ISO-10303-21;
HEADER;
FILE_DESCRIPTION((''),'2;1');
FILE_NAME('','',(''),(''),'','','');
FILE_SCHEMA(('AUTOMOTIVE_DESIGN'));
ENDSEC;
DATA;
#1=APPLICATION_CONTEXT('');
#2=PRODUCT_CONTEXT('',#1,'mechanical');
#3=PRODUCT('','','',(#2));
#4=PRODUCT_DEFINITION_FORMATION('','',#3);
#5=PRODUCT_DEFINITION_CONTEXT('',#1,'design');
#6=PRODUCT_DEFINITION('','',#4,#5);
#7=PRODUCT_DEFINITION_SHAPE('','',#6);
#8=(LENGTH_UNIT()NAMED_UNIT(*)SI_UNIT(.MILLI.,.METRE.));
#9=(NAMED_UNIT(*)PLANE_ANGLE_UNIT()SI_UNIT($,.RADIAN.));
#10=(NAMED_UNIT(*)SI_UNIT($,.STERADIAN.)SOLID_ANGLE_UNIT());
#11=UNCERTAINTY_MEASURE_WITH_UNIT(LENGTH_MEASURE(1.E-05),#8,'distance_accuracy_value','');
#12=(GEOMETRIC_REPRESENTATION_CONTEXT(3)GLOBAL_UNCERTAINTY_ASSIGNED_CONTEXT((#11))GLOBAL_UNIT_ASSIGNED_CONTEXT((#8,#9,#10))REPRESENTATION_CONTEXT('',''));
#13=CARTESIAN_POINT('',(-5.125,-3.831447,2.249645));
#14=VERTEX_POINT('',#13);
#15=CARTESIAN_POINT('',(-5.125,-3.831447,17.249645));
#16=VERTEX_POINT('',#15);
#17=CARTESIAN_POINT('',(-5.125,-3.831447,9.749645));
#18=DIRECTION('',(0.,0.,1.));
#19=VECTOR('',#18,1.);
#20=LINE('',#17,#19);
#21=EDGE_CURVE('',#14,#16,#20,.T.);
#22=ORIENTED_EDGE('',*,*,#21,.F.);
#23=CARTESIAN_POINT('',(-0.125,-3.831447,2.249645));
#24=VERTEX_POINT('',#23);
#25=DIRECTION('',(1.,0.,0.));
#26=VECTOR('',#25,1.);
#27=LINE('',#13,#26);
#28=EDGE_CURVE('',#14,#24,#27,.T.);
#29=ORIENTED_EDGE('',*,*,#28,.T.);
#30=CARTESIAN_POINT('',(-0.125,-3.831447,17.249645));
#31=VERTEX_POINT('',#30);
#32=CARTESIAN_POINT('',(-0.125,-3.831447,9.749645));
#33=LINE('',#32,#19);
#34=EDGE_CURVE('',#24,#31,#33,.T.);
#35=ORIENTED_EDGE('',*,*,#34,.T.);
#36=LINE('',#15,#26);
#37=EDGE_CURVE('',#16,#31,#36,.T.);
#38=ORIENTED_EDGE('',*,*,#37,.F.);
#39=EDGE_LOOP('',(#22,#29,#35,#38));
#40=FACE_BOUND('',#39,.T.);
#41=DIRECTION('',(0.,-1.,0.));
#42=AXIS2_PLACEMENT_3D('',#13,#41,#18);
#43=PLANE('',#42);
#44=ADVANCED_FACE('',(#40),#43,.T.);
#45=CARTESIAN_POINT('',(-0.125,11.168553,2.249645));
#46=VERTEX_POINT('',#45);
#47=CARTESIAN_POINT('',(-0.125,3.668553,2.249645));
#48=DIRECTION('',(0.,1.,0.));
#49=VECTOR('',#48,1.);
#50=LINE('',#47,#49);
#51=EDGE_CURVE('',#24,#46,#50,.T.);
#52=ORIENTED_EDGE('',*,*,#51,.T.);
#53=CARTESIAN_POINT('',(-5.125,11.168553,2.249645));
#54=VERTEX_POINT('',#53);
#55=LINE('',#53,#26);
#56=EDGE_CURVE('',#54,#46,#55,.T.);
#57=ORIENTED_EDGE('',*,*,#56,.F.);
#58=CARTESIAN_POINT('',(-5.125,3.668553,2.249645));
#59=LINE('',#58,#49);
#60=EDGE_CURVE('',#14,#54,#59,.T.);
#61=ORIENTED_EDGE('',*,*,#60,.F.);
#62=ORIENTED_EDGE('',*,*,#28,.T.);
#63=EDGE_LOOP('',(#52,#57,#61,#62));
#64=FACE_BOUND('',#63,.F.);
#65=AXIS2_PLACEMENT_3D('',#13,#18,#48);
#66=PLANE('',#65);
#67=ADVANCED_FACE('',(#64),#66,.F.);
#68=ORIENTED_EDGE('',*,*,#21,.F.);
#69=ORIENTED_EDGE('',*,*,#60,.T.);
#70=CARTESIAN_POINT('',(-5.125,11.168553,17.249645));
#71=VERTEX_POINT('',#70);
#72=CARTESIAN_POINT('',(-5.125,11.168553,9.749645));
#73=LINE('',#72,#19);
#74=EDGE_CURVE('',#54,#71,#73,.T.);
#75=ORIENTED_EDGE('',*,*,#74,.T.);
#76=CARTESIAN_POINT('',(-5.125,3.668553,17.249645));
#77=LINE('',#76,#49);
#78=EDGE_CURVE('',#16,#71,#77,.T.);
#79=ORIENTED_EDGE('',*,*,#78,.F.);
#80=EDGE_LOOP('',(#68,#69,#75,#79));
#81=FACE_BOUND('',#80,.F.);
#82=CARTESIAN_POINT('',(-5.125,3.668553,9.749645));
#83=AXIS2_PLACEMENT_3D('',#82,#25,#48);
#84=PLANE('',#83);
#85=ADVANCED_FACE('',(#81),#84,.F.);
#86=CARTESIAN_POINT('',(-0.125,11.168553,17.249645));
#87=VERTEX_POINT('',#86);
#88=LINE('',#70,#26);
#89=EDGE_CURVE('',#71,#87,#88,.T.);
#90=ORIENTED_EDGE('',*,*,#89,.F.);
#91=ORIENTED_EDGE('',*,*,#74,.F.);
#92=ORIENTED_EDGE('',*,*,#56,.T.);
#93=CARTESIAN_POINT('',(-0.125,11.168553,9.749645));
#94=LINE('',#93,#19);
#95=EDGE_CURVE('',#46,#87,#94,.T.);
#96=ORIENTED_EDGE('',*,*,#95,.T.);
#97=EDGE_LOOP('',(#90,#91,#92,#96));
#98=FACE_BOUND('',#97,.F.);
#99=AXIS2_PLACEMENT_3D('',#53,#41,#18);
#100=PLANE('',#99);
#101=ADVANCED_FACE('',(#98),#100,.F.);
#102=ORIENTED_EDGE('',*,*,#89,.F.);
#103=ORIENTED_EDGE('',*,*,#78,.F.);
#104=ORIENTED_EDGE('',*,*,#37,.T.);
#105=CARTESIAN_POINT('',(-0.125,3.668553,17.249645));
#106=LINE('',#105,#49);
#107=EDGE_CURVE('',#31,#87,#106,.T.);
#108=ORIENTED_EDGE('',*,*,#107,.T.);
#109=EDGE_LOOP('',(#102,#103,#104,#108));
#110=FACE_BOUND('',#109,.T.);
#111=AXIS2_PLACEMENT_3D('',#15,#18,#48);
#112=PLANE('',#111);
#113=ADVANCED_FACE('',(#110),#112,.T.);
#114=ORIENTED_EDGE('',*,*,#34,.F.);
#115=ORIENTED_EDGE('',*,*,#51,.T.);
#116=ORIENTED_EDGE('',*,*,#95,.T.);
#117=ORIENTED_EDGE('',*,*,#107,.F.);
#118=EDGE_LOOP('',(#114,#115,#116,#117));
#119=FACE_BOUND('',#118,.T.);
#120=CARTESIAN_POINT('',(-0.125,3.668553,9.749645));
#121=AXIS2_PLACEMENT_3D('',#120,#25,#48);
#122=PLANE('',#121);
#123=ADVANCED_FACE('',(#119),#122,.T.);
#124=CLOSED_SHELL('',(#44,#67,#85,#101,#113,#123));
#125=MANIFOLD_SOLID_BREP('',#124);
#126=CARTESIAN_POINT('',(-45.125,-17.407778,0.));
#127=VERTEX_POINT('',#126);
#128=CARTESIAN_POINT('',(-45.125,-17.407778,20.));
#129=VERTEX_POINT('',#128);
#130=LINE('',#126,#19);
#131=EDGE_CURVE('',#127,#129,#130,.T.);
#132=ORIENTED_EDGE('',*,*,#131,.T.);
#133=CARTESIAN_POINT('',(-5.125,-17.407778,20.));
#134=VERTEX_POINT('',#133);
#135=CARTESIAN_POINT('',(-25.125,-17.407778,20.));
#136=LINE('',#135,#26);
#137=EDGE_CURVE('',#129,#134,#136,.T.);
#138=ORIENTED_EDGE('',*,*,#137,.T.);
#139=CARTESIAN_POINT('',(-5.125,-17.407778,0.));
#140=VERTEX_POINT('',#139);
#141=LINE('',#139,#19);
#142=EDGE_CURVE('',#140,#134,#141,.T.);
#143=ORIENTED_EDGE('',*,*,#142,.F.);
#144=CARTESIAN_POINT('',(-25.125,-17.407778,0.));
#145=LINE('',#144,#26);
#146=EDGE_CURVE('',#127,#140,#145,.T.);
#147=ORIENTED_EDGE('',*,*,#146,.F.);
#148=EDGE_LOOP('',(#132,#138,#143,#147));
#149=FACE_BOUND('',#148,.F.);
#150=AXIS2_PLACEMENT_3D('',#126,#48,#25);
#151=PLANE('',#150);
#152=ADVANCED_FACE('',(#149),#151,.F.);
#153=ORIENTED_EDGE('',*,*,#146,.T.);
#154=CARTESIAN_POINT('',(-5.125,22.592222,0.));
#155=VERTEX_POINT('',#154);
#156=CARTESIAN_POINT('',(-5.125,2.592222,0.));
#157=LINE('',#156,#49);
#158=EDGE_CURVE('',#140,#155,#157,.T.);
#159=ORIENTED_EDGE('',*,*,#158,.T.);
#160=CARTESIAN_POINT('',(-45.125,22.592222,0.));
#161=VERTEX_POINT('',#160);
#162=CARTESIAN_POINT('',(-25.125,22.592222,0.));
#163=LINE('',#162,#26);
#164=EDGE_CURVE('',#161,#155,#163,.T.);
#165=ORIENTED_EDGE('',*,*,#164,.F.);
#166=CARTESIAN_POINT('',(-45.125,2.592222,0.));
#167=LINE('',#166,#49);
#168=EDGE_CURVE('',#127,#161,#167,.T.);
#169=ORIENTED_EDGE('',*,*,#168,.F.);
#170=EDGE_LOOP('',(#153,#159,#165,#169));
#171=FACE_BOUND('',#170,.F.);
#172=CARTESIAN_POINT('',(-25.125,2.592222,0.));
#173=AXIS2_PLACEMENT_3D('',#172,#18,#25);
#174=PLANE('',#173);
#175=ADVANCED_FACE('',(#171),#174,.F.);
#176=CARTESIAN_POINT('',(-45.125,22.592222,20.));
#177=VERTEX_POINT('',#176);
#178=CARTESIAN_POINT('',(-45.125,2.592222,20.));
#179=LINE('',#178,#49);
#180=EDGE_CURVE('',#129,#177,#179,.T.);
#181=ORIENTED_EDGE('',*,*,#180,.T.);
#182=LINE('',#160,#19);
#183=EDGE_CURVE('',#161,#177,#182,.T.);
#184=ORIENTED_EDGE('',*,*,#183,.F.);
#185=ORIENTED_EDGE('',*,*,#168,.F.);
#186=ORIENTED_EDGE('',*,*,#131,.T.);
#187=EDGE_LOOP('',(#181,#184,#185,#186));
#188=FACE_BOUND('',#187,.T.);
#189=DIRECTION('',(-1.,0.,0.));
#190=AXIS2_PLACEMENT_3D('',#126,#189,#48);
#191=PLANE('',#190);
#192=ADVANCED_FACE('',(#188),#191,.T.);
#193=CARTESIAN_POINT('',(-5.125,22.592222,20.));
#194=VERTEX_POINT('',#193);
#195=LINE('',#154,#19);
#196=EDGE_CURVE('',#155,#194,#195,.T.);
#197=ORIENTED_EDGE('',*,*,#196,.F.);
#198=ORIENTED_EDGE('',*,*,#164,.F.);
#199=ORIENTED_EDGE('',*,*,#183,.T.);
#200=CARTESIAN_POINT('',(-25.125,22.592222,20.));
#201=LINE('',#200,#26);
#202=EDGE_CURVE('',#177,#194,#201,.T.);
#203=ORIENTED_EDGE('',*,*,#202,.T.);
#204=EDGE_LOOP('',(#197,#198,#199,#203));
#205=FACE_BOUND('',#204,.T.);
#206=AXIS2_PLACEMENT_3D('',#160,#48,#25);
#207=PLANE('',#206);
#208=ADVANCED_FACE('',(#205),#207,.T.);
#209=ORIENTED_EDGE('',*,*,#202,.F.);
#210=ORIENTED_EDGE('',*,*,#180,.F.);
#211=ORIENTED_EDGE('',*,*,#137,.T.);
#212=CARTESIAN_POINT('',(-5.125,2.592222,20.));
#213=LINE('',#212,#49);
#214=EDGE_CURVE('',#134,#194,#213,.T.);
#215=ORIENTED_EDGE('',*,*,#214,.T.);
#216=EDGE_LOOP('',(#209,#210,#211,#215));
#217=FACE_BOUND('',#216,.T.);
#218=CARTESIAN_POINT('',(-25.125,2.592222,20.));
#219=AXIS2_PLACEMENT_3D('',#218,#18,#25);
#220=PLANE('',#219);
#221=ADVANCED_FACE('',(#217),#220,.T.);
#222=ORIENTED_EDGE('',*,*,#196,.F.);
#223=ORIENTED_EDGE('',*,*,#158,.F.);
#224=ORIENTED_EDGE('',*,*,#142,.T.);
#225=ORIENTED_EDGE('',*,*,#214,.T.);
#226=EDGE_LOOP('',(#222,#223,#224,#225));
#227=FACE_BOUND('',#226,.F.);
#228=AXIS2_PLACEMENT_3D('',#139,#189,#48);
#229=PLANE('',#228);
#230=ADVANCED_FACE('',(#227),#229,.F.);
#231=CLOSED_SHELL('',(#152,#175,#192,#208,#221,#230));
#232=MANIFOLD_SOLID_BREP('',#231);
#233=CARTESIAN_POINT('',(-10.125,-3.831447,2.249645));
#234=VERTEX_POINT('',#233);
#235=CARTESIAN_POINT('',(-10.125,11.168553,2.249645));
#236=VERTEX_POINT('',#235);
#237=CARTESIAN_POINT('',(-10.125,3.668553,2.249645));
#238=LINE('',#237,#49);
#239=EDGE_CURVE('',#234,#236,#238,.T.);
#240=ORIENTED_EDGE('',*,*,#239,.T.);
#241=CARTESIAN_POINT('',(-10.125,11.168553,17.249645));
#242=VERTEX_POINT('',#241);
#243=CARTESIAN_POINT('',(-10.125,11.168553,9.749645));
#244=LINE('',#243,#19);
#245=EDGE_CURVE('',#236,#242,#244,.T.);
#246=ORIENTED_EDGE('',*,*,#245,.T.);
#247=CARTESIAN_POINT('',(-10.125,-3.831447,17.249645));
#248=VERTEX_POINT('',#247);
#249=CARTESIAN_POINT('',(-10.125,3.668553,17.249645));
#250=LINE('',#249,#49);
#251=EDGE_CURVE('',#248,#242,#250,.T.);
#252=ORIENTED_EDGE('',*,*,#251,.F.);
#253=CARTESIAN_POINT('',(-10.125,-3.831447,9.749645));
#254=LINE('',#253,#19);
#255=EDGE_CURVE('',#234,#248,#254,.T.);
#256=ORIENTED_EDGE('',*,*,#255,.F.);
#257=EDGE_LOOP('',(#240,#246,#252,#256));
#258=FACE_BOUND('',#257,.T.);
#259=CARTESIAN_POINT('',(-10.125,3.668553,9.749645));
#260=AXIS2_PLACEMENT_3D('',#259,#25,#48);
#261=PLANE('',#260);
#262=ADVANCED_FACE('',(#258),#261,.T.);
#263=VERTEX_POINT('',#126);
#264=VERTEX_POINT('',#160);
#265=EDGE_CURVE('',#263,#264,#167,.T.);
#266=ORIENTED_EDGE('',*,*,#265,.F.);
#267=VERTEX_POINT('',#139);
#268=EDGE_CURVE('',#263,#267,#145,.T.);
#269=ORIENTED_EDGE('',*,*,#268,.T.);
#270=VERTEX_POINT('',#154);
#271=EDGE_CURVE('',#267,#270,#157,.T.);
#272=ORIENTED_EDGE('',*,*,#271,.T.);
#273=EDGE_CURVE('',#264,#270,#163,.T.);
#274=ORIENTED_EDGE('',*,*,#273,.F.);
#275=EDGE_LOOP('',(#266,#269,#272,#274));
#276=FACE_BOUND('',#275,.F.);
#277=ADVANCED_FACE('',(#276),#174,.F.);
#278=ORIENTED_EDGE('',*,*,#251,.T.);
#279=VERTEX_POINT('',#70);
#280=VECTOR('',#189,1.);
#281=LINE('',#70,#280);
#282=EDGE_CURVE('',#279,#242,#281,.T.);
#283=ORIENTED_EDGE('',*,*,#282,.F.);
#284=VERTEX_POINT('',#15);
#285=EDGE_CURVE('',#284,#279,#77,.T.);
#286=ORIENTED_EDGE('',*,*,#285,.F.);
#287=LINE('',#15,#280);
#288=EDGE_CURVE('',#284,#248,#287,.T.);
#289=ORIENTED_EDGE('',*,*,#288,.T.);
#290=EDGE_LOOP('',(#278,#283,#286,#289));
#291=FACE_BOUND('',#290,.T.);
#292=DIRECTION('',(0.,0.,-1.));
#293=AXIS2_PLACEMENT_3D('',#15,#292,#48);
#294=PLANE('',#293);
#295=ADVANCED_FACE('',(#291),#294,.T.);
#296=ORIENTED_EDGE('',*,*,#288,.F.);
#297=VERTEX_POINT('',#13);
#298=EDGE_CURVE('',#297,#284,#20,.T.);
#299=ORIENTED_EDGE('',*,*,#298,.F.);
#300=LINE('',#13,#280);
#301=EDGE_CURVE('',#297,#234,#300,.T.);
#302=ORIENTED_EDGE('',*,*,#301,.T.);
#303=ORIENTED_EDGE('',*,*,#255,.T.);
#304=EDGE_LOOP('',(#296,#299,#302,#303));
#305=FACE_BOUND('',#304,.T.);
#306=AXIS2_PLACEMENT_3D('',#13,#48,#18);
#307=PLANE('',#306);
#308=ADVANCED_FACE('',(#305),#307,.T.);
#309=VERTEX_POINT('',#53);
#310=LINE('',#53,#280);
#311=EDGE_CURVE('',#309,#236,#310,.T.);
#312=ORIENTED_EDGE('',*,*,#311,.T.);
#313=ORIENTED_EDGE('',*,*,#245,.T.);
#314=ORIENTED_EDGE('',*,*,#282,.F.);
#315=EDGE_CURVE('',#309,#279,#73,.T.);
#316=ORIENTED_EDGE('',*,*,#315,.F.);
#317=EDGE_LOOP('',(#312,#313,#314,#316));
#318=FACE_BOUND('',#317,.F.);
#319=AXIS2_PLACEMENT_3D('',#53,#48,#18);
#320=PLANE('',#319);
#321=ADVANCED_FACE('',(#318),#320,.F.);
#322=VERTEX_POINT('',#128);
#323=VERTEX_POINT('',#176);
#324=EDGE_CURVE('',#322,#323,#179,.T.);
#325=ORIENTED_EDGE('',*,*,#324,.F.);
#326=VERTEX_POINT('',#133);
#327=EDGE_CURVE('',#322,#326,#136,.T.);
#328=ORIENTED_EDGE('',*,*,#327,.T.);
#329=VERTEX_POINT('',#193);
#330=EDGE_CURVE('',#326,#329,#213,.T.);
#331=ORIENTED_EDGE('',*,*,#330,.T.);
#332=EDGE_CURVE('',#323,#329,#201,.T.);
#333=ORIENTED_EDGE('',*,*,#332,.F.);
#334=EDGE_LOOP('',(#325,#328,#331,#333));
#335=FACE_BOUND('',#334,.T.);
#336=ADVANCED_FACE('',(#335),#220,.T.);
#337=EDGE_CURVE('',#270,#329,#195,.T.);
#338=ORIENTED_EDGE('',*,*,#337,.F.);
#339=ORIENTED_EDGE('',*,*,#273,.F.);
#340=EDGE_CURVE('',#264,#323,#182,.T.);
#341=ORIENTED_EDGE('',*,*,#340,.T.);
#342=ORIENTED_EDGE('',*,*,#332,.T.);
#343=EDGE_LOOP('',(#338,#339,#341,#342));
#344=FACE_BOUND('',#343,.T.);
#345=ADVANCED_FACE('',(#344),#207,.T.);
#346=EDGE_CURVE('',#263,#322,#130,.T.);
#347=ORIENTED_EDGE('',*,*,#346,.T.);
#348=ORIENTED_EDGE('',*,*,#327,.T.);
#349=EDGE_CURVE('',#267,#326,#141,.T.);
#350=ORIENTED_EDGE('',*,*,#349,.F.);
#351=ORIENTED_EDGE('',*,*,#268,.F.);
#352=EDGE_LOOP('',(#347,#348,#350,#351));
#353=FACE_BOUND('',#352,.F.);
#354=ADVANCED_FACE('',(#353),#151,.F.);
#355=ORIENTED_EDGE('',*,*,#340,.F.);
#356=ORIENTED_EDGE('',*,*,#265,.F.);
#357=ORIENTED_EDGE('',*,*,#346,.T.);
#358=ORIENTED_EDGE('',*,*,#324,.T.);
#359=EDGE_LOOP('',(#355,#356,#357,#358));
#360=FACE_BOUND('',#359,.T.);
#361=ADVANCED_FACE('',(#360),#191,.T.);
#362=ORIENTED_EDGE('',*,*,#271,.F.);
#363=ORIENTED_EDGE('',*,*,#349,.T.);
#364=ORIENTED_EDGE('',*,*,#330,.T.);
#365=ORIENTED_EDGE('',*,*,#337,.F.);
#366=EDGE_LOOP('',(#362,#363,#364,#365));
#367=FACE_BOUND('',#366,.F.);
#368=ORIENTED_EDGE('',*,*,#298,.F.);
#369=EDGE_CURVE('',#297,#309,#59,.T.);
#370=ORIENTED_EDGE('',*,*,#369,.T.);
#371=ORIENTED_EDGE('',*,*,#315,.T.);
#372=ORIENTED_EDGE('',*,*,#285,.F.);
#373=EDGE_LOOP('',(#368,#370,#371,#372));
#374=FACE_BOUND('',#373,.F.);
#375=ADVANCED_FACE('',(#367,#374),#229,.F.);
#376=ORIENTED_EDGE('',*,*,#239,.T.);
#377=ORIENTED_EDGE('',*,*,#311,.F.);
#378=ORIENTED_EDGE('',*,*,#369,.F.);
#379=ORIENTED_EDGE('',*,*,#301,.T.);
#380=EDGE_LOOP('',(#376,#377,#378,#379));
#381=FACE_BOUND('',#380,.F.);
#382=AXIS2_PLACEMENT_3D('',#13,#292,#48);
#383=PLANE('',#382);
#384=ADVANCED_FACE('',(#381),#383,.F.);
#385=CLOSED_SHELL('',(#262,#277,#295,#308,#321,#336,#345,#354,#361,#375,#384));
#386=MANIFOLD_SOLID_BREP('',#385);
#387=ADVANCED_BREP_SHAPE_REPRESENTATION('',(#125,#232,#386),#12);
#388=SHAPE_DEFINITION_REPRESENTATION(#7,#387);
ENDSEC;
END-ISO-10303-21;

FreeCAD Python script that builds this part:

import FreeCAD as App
import Part
import Sketcher
from FreeCAD import Vector


def add_polygon(sketch, points):
    """Adds a closed chain of lines whose ends are joined by coincident constraints."""
    first, n = sketch.GeometryCount, len(points)
    for a, b in zip(points, points[1:] + points[:1]):
        sketch.addGeometry(Part.LineSegment(App.Vector(*a, 0), App.Vector(*b, 0)), False)
    for i in range(n):
        sketch.addConstraint(Sketcher.Constraint("Coincident", first + i, 2, first + (i + 1) % n, 1))

doc = App.newDocument("Part")
body = doc.addObject("PartDesign::Body", "Body")

# Sketch on XY plane
sketch1 = doc.addObject("Sketcher::SketchObject", "Sketch")
body.addObject(sketch1)
sketch1.AttachmentSupport = (doc.XY_Plane, [""])
sketch1.MapMode = "FlatFace"
add_polygon(sketch1, [(-45.125, 22.592222), (-45.125, -17.407778), (-5.125, -17.407778), (-5.125, 22.592222)])  # lines 0-3
sketch1.addConstraint(Sketcher.Constraint("Vertical", 0))
sketch1.addConstraint(Sketcher.Constraint("Horizontal", 1))
sketch1.addConstraint(Sketcher.Constraint("Vertical", 2))
sketch1.addConstraint(Sketcher.Constraint("Horizontal", 3))
sketch1.addConstraint(Sketcher.Constraint("Equal", 3, 0))
sketch1.addConstraint(Sketcher.Constraint("DistanceX", 1, 1, 1, 2, 40.0))
sketch1.addConstraint(Sketcher.Constraint("DistanceX", 0, 2, -1, 1, 45.125))
sketch1.addConstraint(Sketcher.Constraint("DistanceY", 0, 2, -1, 1, 17.407778))
pad1 = doc.addObject("PartDesign::Pad", "Pad")
body.addObject(pad1)
pad1.Profile = sketch1
pad1.Length = 20
body2 = doc.addObject("PartDesign::Body", "Body001")
doc.recompute()

body2.BaseFeature = body
doc.recompute()
body3 = doc.addObject("PartDesign::Body", "Body002")

# Sketch on YZ plane
sketch2 = doc.addObject("Sketcher::SketchObject", "Sketch001")
body3.addObject(sketch2)
sketch2.AttachmentSupport = (doc.getObject("YZ_Plane002"), [""])
sketch2.MapMode = "FlatFace"
sketch2.AttachmentOffset = App.Placement(Vector(0, 0, -5.125), App.Rotation())
add_polygon(sketch2, [(-3.831447, 17.249645), (-3.831447, 2.249645), (11.168553, 2.249645), (11.168553, 17.249645)])  # lines 0-3
sketch2.addConstraint(Sketcher.Constraint("Vertical", 0))
sketch2.addConstraint(Sketcher.Constraint("Horizontal", 1))
sketch2.addConstraint(Sketcher.Constraint("Vertical", 2))
sketch2.addConstraint(Sketcher.Constraint("Horizontal", 3))
sketch2.addConstraint(Sketcher.Constraint("Equal", 3, 0))
sketch2.addConstraint(Sketcher.Constraint("DistanceX", 1, 1, 1, 2, 15.0))
sketch2.addConstraint(Sketcher.Constraint("DistanceX", 0, 2, -1, 1, 3.831447))
sketch2.addConstraint(Sketcher.Constraint("DistanceY", -1, 1, 0, 2, 2.249645))
pad2 = doc.addObject("PartDesign::Pad", "Pad001")
body3.addObject(pad2)
pad2.Profile = sketch2
pad2.Length = 5
body4 = doc.addObject("PartDesign::Body", "Body003")
doc.recompute()

body4.BaseFeature = body
doc.recompute()

# Sketch on YZ plane
sketch3 = doc.addObject("Sketcher::SketchObject", "Sketch002")
body4.addObject(sketch3)
sketch3.AttachmentSupport = (doc.getObject("YZ_Plane003"), [""])
sketch3.MapMode = "FlatFace"
sketch3.AttachmentOffset = App.Placement(Vector(0, 0, -5.125), App.Rotation())
add_polygon(sketch3, [(-3.831447, 17.249645), (-3.831447, 2.249645), (11.168553, 2.249645), (11.168553, 17.249645)])  # lines 0-3
sketch3.addConstraint(Sketcher.Constraint("Vertical", 0))
sketch3.addConstraint(Sketcher.Constraint("Horizontal", 1))
sketch3.addConstraint(Sketcher.Constraint("Vertical", 2))
sketch3.addConstraint(Sketcher.Constraint("Horizontal", 3))
sketch3.addConstraint(Sketcher.Constraint("Equal", 3, 0))
sketch3.addConstraint(Sketcher.Constraint("DistanceX", 1, 1, 1, 2, 15.0))
sketch3.addConstraint(Sketcher.Constraint("DistanceX", 0, 2, -1, 1, 3.831447))
sketch3.addConstraint(Sketcher.Constraint("DistanceY", -1, 1, 0, 2, 2.249645))
pocket1 = doc.addObject("PartDesign::Pocket", "Pocket")
body4.addObject(pocket1)
pocket1.Profile = sketch3
pocket1.Length = 5
body.Visibility = False

doc.recompute()
